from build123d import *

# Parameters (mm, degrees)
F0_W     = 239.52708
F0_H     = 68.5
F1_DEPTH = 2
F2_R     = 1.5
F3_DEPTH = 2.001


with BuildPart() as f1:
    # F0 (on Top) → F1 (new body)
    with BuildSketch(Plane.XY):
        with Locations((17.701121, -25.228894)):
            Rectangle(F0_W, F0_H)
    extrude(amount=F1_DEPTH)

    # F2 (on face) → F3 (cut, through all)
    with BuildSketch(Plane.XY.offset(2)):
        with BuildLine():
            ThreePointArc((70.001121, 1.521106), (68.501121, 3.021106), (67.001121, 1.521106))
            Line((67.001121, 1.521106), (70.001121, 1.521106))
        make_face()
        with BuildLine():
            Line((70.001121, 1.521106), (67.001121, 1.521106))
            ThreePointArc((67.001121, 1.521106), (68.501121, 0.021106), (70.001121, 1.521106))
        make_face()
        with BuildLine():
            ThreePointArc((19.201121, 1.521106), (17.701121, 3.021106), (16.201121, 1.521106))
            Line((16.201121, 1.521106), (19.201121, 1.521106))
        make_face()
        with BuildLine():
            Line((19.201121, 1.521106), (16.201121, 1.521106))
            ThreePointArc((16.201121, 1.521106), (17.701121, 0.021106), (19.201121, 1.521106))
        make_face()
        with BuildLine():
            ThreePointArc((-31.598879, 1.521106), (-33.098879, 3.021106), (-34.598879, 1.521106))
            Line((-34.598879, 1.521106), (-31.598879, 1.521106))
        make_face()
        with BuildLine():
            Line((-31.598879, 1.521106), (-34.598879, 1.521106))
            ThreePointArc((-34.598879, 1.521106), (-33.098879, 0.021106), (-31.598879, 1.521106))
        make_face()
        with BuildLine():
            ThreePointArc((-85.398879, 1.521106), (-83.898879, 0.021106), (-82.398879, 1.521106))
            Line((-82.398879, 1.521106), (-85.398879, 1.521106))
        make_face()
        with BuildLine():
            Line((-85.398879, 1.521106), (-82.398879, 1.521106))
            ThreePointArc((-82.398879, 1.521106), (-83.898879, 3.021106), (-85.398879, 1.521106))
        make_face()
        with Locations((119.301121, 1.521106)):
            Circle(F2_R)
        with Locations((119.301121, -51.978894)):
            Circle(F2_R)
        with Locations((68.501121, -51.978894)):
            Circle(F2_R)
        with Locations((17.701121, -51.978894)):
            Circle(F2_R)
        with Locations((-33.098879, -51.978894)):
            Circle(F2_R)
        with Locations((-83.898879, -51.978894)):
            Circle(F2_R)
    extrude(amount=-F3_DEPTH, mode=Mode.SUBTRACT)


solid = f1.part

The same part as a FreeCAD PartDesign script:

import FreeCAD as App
import Part
import Sketcher

V = App.Vector

doc = App.newDocument("Part")
params = doc.addObject("Spreadsheet::Sheet", "Params")
for row, (alias, value) in enumerate([
    ("sketch1_height", "68.5 mm"),
    ("pad1_length", "2 mm"),
    ("sketch2_diameter", "3 mm"),
], start=1):
    params.set(f"A{row}", alias)
    params.set(f"B{row}", "=" + value)
    params.setAlias(f"B{row}", alias)

body = doc.addObject("PartDesign::Body", "Body")

# Sketch on XY plane
sketch1 = doc.addObject("Sketcher::SketchObject", "Sketch")
body.addObject(sketch1)
sketch1.AttachmentSupport = (doc.XY_Plane, [""])
sketch1.MapMode = "FlatFace"
sketch1.addGeometry([
    Part.LineSegment(V(-102, 9, 0), V(-102, -59, 0)),
    Part.LineSegment(V(-102, -59, 0), V(137, -59, 0)),
    Part.LineSegment(V(137, -59, 0), V(137, 9, 0)),
    Part.LineSegment(V(137, 9, 0), V(-102, 9, 0)),
], False)
sketch1.addConstraint([
    Sketcher.Constraint("Coincident", 0, 2, 1, 1),
    Sketcher.Constraint("Coincident", 1, 2, 2, 1),
    Sketcher.Constraint("Coincident", 2, 2, 3, 1),
    Sketcher.Constraint("Coincident", 3, 2, 0, 1),
    Sketcher.Constraint("Vertical", 0),
    Sketcher.Constraint("Horizontal", 1),
    Sketcher.Constraint("Vertical", 2),
    Sketcher.Constraint("Horizontal", 3),
    Sketcher.Constraint("DistanceY", 0, 2, 0, 1, 68.5),
    Sketcher.Constraint("DistanceX", 1, 1, 1, 2, 239.52708),
    Sketcher.Constraint("DistanceX", 0, 2, -1, 1, 102.062419),
    Sketcher.Constraint("DistanceY", 0, 2, -1, 1, 59.478894),
])
sketch1.setExpression("Constraints[8]", "Params.sketch1_height")
pad1 = doc.addObject("PartDesign::Pad", "Pad")
body.addObject(pad1)
pad1.Profile = sketch1
pad1.setExpression("Length", "Params.pad1_length")

# Sketch on XY plane
sketch2 = doc.addObject("Sketcher::SketchObject", "Sketch001")
body.addObject(sketch2)
sketch2.AttachmentSupport = (doc.XY_Plane, [""])
sketch2.MapMode = "FlatFace"
sketch2.AttachmentOffset = App.Placement(V(0, 0, 2), App.Rotation())
sketch2.addGeometry([
    Part.Circle(V(68.5, 1.5, 0), V(0, 0, 1), 1.5),  # 0
    Part.Circle(V(17.7, 1.5, 0), V(0, 0, 1), 1.5),  # 1
    Part.Circle(V(-33.1, 1.5, 0), V(0, 0, 1), 1.5),  # 2
    Part.Circle(V(-83.9, 1.5, 0), V(0, 0, 1), 1.5),  # 3
    Part.Circle(V(119.3, 1.5, 0), V(0, 0, 1), 1.5),  # 4
    Part.Circle(V(119.3, -52, 0), V(0, 0, 1), 1.5),  # 5
    Part.Circle(V(68.5, -52, 0), V(0, 0, 1), 1.5),  # 6
    Part.Circle(V(17.7, -52, 0), V(0, 0, 1), 1.5),  # 7
    Part.Circle(V(-33.1, -52, 0), V(0, 0, 1), 1.5),  # 8
    Part.Circle(V(-83.9, -52, 0), V(0, 0, 1), 1.5),  # 9
], False)
sketch2.addConstraint([
    Sketcher.Constraint("Equal", 0, 1),
    Sketcher.Constraint("Equal", 1, 2),
    Sketcher.Constraint("Equal", 2, 3),
    Sketcher.Constraint("Equal", 3, 4),
    Sketcher.Constraint("Equal", 4, 5),
    Sketcher.Constraint("Equal", 5, 6),
    Sketcher.Constraint("Equal", 6, 7),
    Sketcher.Constraint("Equal", 7, 8),
    Sketcher.Constraint("Equal", 8, 9),
    Sketcher.Constraint("Horizontal", 0, 3, 1, 3),
    Sketcher.Constraint("Horizontal", 1, 3, 2, 3),
    Sketcher.Constraint("Horizontal", 2, 3, 3, 3),
    Sketcher.Constraint("Horizontal", 3, 3, 4, 3),
    Sketcher.Constraint("Horizontal", 5, 3, 6, 3),
    Sketcher.Constraint("Horizontal", 6, 3, 7, 3),
    Sketcher.Constraint("Horizontal", 7, 3, 8, 3),
    Sketcher.Constraint("Horizontal", 8, 3, 9, 3),
    Sketcher.Constraint("Vertical", 4, 3, 5, 3),
    Sketcher.Constraint("Vertical", 0, 3, 6, 3),
    Sketcher.Constraint("Vertical", 1, 3, 7, 3),
    Sketcher.Constraint("Vertical", 2, 3, 8, 3),
    Sketcher.Constraint("Vertical", 3, 3, 9, 3),
    Sketcher.Constraint("Diameter", 0, 3.0),
    Sketcher.Constraint("DistanceX", 1, 3, 0, 3, 50.8),
    Sketcher.Constraint("DistanceX", 2, 3, 1, 3, 50.8),
    Sketcher.Constraint("DistanceX", 3, 3, 2, 3, 50.8),
    Sketcher.Constraint("DistanceX", 0, 3, 4, 3, 50.8),
    Sketcher.Constraint("DistanceY", 5, 3, 4, 3, 53.5),
    Sketcher.Constraint("DistanceX", -1, 1, 0, 3, 68.501121),
    Sketcher.Constraint("DistanceY", -1, 1, 0, 3, 1.521106),
])
sketch2.setExpression("Constraints[22]", "Params.sketch2_diameter")
pocket1 = doc.addObject("PartDesign::Pocket", "Pocket")
body.addObject(pocket1)
pocket1.Profile = sketch2
pocket1.Type = "ThroughAll"

doc.recompute()
